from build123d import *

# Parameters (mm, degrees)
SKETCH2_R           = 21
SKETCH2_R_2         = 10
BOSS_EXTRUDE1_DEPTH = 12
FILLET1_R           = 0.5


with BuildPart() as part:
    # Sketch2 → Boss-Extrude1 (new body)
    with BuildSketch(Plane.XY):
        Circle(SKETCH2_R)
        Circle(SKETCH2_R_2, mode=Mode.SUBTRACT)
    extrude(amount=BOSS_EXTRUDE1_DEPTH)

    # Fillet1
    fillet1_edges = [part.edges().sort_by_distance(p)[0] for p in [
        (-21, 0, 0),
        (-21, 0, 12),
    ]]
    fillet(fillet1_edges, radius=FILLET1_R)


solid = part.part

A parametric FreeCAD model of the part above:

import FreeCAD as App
import Part
import Sketcher
Q = App.Units.Quantity


def edges_at(feature, points):
    """Names of the edges that pass closest to the given points."""
    edges = feature.Shape.Edges
    near = lambda p: min(range(len(edges)), key=lambda i: edges[i].distToShape(Part.Vertex(*p))[0])
    return sorted({f"Edge{near(p) + 1}" for p in points})

doc = App.newDocument("Part")
body = doc.addObject("PartDesign::Body", "Body")

sketch1 = body.newObject("Sketcher::SketchObject", "Sketch")
sketch1.AttachmentSupport = (doc.getObject("XY_Plane"), [""])
sketch1.MapMode = "FlatFace"
sketch1.addGeometry([
    Part.Circle(App.Vector(0, 0, 0), App.Vector(0, 0, 1), 21),
    Part.Circle(App.Vector(0, 0, 0), App.Vector(0, 0, 1), 10),
], False)
sketch1.addConstraint([
    Sketcher.Constraint("Coincident", 0, 3, -1, 1),
    Sketcher.Constraint("Coincident", 1, 3, -1, 1),
    Sketcher.Constraint("Diameter", 0, Q("42 mm")),
    Sketcher.Constraint("Diameter", 1, Q("20 mm")),
])
pad1 = body.newObject("PartDesign::Pad", "Pad")
pad1.Profile = sketch1
pad1.Length = 12
doc.recompute()

fillet = body.newObject("PartDesign::Fillet", "Fillet")
fillet.Base = (pad1, edges_at(pad1, [(-21, 0, 0), (-21, 0, 12)]))
fillet.Radius = 0.5

doc.recompute()
